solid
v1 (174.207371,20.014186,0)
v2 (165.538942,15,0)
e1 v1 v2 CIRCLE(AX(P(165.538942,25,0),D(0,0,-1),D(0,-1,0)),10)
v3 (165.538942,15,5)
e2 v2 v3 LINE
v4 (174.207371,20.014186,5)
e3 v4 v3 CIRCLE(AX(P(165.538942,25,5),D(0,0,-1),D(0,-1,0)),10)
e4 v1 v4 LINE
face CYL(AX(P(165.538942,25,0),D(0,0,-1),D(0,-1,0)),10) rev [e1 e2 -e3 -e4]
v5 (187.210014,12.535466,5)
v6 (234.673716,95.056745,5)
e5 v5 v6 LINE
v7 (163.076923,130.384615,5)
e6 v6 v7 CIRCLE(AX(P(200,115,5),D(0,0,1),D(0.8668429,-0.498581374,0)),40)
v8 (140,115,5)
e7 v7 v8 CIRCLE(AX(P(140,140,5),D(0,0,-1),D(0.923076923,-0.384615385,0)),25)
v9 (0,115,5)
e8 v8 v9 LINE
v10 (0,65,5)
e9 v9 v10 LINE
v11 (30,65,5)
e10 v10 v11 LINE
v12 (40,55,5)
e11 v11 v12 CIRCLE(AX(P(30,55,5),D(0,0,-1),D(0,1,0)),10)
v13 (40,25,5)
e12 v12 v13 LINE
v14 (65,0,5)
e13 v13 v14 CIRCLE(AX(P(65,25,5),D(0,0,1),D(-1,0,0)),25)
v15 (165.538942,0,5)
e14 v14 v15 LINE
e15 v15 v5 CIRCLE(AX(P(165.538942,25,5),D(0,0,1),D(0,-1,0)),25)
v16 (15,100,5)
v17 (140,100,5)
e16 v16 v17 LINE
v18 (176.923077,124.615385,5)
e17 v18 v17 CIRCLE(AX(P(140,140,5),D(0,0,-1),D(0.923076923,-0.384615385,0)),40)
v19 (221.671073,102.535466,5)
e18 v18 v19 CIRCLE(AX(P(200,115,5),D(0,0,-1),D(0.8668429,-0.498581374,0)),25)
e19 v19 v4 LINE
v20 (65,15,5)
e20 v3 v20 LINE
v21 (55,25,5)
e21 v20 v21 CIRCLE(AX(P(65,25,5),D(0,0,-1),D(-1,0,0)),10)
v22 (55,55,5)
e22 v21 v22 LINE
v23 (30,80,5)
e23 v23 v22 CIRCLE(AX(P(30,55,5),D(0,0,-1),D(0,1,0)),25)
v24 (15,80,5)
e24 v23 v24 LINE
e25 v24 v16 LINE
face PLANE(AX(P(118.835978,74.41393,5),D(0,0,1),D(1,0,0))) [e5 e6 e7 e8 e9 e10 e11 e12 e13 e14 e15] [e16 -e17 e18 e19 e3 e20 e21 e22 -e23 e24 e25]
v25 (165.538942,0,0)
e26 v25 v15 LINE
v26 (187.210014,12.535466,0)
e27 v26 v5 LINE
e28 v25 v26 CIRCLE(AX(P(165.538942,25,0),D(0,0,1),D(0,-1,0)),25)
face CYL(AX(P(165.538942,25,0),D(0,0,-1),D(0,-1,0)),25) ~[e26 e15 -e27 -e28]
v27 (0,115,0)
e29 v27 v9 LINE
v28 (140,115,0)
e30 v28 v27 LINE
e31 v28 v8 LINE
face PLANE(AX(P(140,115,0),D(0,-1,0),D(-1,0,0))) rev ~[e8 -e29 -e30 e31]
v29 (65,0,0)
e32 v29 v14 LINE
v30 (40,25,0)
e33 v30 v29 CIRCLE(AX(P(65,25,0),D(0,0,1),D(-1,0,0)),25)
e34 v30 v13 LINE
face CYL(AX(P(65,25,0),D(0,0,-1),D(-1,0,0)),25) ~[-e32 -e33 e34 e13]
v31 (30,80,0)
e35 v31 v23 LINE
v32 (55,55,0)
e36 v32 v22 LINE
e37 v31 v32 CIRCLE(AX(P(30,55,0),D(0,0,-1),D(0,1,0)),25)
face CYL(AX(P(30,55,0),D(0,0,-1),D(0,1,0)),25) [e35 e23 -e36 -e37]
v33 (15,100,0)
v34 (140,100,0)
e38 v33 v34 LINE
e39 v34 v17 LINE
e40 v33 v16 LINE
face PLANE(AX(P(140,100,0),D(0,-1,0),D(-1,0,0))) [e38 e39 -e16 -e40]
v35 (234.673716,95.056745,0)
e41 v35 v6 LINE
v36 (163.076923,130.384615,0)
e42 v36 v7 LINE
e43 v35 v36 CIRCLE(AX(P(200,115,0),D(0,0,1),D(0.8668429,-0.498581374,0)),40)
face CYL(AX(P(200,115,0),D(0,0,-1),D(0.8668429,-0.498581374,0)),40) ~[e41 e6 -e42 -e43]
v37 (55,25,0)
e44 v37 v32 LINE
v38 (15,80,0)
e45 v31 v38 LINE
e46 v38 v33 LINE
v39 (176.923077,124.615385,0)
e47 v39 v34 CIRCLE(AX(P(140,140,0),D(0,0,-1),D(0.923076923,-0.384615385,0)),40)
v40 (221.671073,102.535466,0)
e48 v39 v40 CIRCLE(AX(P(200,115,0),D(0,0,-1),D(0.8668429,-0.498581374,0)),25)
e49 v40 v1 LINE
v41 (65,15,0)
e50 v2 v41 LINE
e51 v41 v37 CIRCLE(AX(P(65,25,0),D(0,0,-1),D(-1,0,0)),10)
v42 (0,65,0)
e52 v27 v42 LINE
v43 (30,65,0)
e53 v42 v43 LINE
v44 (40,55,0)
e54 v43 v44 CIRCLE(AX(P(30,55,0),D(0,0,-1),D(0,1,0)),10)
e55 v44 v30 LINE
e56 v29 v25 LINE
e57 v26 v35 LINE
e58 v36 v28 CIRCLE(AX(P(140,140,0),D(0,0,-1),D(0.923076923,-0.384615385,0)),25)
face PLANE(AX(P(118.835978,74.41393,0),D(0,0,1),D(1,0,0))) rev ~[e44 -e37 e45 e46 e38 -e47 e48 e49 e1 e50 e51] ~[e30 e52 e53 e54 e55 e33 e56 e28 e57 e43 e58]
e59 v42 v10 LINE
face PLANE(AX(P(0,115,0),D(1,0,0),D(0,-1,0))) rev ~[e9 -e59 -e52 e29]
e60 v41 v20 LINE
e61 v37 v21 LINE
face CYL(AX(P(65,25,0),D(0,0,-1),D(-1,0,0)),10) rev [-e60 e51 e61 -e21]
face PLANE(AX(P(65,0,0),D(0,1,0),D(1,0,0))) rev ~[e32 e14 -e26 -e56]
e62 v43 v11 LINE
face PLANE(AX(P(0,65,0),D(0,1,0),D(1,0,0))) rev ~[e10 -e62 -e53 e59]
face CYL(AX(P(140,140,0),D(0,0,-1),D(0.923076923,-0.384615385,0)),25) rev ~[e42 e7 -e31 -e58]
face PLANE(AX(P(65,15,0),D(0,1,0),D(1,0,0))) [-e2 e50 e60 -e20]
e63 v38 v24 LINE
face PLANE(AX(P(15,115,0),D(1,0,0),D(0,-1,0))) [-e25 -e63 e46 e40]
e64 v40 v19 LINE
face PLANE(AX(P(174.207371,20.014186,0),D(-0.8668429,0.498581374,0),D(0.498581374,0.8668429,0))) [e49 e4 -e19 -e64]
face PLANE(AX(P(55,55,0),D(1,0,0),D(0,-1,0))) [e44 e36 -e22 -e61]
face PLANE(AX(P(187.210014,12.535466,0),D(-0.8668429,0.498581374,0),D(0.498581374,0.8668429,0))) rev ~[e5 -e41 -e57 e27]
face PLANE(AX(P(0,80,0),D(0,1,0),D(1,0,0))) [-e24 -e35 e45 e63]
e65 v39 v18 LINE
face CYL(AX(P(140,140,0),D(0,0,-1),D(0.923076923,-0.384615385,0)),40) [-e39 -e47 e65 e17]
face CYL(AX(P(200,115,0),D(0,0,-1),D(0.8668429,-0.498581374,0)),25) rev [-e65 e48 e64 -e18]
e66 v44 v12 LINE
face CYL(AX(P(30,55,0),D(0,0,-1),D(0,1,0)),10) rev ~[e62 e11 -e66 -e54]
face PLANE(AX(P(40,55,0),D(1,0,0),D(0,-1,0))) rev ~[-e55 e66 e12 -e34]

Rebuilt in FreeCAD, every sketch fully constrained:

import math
import FreeCAD as App
import Part
import Sketcher
from FreeCAD import Vector
Q = App.Units.Quantity


def faces_at(feature, points):
    """Names of the faces that lie closest to the given points."""
    faces = feature.Shape.Faces
    near = lambda p: min(range(len(faces)), key=lambda i: faces[i].distToShape(Part.Vertex(*p))[0])
    return sorted({f"Face{near(p) + 1}" for p in points})

doc = App.newDocument("Part")
body = doc.addObject("PartDesign::Body", "Body")

# Sketch on XY plane
sketch1 = doc.addObject("Sketcher::SketchObject", "Sketch")
body.addObject(sketch1)
sketch1.AttachmentSupport = (doc.XY_Plane, [""])
sketch1.MapMode = "FlatFace"
sketch1.addGeometry([
    Part.LineSegment(Vector(140, 115, 0), Vector(0, 115, 0)),  # 0
    Part.LineSegment(Vector(0, 115, 0), Vector(0, 65, 0)),  # 1
    Part.LineSegment(Vector(0, 65, 0), Vector(30, 65, 0)),  # 2
    Part.ArcOfCircle(Part.Circle(Vector(30, 55, 0), Vector(0, 0, 1), 10), math.radians(0), math.radians(90)),  # 3
    Part.LineSegment(Vector(40, 55, 0), Vector(40, 25, 0)),  # 4
    Part.ArcOfCircle(Part.Circle(Vector(65, 25, 0), Vector(0, 0, 1), 25), math.radians(180), math.radians(270)),  # 5
    Part.LineSegment(Vector(65, 0, 0), Vector(166, 0, 0)),  # 6
    Part.ArcOfCircle(Part.Circle(Vector(166, 25, 0), Vector(0, 0, 1), 25), math.radians(-90), math.radians(-30)),  # 7
    Part.LineSegment(Vector(187, 13, 0), Vector(235, 95, 0)),  # 8
    Part.ArcOfCircle(Part.Circle(Vector(200, 115, 0), Vector(0, 0, 1), 40), math.radians(-30), math.radians(157)),  # 9
    Part.ArcOfCircle(Part.Circle(Vector(140, 140, 0), Vector(0, 0, 1), 25), math.radians(-90), math.radians(-23)),  # 10
], False)
sketch1.addConstraint([
    Sketcher.Constraint("Coincident", 0, 2, 1, 1),
    Sketcher.Constraint("Coincident", 1, 2, 2, 1),
    Sketcher.Constraint("Tangent", 2, 2, 3, 2),
    Sketcher.Constraint("Tangent", 3, 1, 4, 1),
    Sketcher.Constraint("Tangent", 4, 2, 5, 1),
    Sketcher.Constraint("Tangent", 5, 2, 6, 1),
    Sketcher.Constraint("Tangent", 6, 2, 7, 1),
    Sketcher.Constraint("Tangent", 7, 2, 8, 1),
    Sketcher.Constraint("Tangent", 8, 2, 9, 1),
    Sketcher.Constraint("Tangent", 9, 2, 10, 2),
    Sketcher.Constraint("Tangent", 10, 1, 0, 1),
    Sketcher.Constraint("Horizontal", 0),
    Sketcher.Constraint("Vertical", 1),
    Sketcher.Constraint("Horizontal", 2),
    Sketcher.Constraint("Vertical", 4),
    Sketcher.Constraint("Horizontal", 6),
    Sketcher.Constraint("Equal", 5, 7),
    Sketcher.Constraint("Equal", 7, 10),
    Sketcher.Constraint("PointOnObject", 0, 2, -2),
    Sketcher.Constraint("PointOnObject", 5, 2, -1),
    Sketcher.Constraint("Horizontal", 9, 3, 0, 2),
    Sketcher.Constraint("Equal", 2, 4),
    Sketcher.Constraint("Radius", 3, Q("10 mm")),
    Sketcher.Constraint("Radius", 5, Q("25 mm")),
    Sketcher.Constraint("Radius", 9, Q("40 mm")),
    Sketcher.Constraint("DistanceX", 0, 2, 0, 1, Q("140 mm")),
    Sketcher.Constraint("DistanceX", 2, 1, 2, 2, Q("30 mm")),
    Sketcher.Constraint("DistanceY", 1, 2, 1, 1, Q("50 mm")),
    Sketcher.Constraint("DistanceX", 6, 1, 6, 2, Q("100.538942 mm")),
])
pad1 = doc.addObject("PartDesign::Pad", "Pad")
body.addObject(pad1)
pad1.Profile = sketch1
pad1.Length = 5
doc.recompute()

thickness = doc.addObject("PartDesign::Thickness", "Thickness")
body.addObject(thickness)
thickness.Base = (pad1, faces_at(pad1, [(120, 77.5, 5), (120, 77.5, 0)]))
thickness.Value = 15
thickness.Reversed = True
thickness.Join = "Intersection"

doc.recompute()
